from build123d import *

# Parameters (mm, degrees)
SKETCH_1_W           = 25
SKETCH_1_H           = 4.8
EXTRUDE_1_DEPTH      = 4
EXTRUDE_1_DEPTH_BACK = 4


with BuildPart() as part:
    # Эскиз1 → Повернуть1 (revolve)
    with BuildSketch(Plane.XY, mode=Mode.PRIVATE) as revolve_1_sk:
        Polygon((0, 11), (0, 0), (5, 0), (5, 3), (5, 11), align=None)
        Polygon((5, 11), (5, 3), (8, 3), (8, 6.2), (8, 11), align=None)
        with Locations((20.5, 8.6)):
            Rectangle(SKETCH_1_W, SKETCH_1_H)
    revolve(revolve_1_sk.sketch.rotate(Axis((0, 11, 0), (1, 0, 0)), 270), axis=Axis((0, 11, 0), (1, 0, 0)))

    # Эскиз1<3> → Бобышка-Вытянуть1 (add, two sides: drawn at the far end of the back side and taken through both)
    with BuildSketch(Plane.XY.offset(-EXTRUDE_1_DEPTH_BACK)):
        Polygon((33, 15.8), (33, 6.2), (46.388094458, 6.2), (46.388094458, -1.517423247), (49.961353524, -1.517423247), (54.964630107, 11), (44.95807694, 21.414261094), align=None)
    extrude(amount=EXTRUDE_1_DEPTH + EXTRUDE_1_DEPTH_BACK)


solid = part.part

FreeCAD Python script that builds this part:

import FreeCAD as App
import Part
import Sketcher
from FreeCAD import Vector
Q = App.Units.Quantity


def add_polygon(sketch, points):
    """Adds a closed chain of lines whose ends are joined by coincident constraints."""
    first, n = sketch.GeometryCount, len(points)
    for a, b in zip(points, points[1:] + points[:1]):
        sketch.addGeometry(Part.LineSegment(App.Vector(*a, 0), App.Vector(*b, 0)), False)
    for i in range(n):
        sketch.addConstraint(Sketcher.Constraint("Coincident", first + i, 2, first + (i + 1) % n, 1))

doc = App.newDocument("Part")
body = doc.addObject("PartDesign::Body", "Body")

sketch1 = doc.addObject("Sketcher::SketchObject", "Sketch")
body.addObject(sketch1)
sketch1.AttachmentSupport = (doc.XY_Plane, [""])
sketch1.MapMode = "FlatFace"
add_polygon(sketch1, [(0, 11), (0, 0), (5, 0), (5, 3), (8, 3), (8, 6.2), (33, 6.2), (33, 11)])
sketch1.addGeometry(Part.LineSegment(Vector(0, 11, 0), Vector(33, 11, 0)), True)
sketch1.addConstraint([
    Sketcher.Constraint("Vertical", 0),
    Sketcher.Constraint("Horizontal", 1),
    Sketcher.Constraint("Vertical", 2),
    Sketcher.Constraint("Horizontal", 3),
    Sketcher.Constraint("Vertical", 4),
    Sketcher.Constraint("Horizontal", 5),
    Sketcher.Constraint("Vertical", 6),
    Sketcher.Constraint("Horizontal", 7),
    Sketcher.Constraint("Horizontal", 8),
    Sketcher.Constraint("Coincident", 0, 2, -1, 1),
    Sketcher.Constraint("Coincident", 8, 1, 7, 2),
    Sketcher.Constraint("Vertical", 5, 2, 8, 2),
    Sketcher.Constraint("Equal", 3, 2),
    Sketcher.Constraint("DistanceX", 1, 1, 1, 2, Q("5 mm")),
    Sketcher.Constraint("DistanceX", 3, 1, 3, 2, Q("3 mm")),
    Sketcher.Constraint("DistanceX", 5, 1, 5, 2, Q("25 mm")),
    Sketcher.Constraint("DistanceY", 0, 2, 0, 1, Q("11 mm")),
    Sketcher.Constraint("DistanceY", 4, 1, 4, 2, Q("3.2 mm")),
])
revolution = doc.addObject("PartDesign::Revolution", "Revolution")
body.addObject(revolution)
revolution.Profile = sketch1
revolution.ReferenceAxis = (sketch1, ["Axis0"])
revolution.Angle = 360

sketch2 = doc.addObject("Sketcher::SketchObject", "Sketch001")
body.addObject(sketch2)
sketch2.AttachmentSupport = (doc.XY_Plane, [""])
sketch2.MapMode = "FlatFace"
add_polygon(sketch2, [(33, 15.8), (33, 6.2), (46.388094, 6.2), (46.388094, -1.517423), (49.961354, -1.517423), (54.96463, 11), (44.958077, 21.414261)])
sketch2.addConstraint([
    Sketcher.Constraint("Vertical", 0),
    Sketcher.Constraint("Horizontal", 1),
    Sketcher.Constraint("Vertical", 2),
    Sketcher.Constraint("Horizontal", 3),
    Sketcher.Constraint("DistanceY", 0, 2, 0, 1, Q("9.6 mm")),
    Sketcher.Constraint("DistanceX", -1, 1, 0, 2, Q("33 mm")),
    Sketcher.Constraint("DistanceY", -1, 1, 4, 2, Q("11 mm")),
    Sketcher.Constraint("DistanceY", -1, 1, 0, 2, Q("6.2 mm")),
    Sketcher.Constraint("DistanceX", 3, 1, 3, 2, Q("3.573259 mm")),
    Sketcher.Constraint("DistanceX", 1, 1, 1, 2, Q("13.388094 mm")),
    Sketcher.Constraint("DistanceY", 2, 2, 2, 1, Q("7.717423 mm")),
    Sketcher.Constraint("DistanceX", -1, 1, 4, 2, Q("54.96463 mm")),
    Sketcher.Constraint("DistanceY", -1, 1, 5, 2, Q("21.414261 mm")),
    Sketcher.Constraint("Distance", 5, Q("14.442574 mm")),
])
pad1 = doc.addObject("PartDesign::Pad", "Pad")
body.addObject(pad1)
pad1.Profile = sketch2
pad1.Type = "TwoLengths"
pad1.Length = 4
pad1.Length2 = 4

doc.recompute()
